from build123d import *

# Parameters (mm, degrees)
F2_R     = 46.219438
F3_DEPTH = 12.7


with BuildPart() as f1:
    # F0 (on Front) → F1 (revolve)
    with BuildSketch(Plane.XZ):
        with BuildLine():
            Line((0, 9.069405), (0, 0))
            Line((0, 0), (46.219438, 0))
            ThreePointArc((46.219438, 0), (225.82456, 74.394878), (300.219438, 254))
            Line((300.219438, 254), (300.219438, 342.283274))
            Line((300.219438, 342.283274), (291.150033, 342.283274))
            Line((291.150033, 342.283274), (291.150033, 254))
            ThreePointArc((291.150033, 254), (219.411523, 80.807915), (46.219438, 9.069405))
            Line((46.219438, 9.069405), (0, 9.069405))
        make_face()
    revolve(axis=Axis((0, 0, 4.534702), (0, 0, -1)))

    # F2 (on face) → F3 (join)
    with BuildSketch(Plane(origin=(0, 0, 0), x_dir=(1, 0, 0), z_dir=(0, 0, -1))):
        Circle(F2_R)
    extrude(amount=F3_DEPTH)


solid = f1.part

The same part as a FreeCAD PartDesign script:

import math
import FreeCAD as App
import Part
import Sketcher
from FreeCAD import Vector
Q = App.Units.Quantity

doc = App.newDocument("Part")
params = doc.addObject("Spreadsheet::Sheet", "Params")
for row, (alias, value) in enumerate([
    ("sketch1_radius", "10.0000001 in"),
    ("revolution_angle", "360 deg"),
    ("pad1_length", "0.5 in"),
], start=1):
    params.set(f"A{row}", alias)
    params.set(f"B{row}", "=" + value)
    params.setAlias(f"B{row}", alias)

body = doc.addObject("PartDesign::Body", "Body")

# Sketch on XZ plane
sketch1 = body.newObject("Sketcher::SketchObject", "Sketch")
sketch1.AttachmentSupport = (doc.getObject("XZ_Plane"), [""])
sketch1.MapMode = "FlatFace"
sketch1.addGeometry([
    Part.LineSegment(Vector(0, 9.069405, 0), Vector(0, 0, 0)),  # 0
    Part.LineSegment(Vector(0, 0, 0), Vector(46.219438, 0, 0)),  # 1
    Part.ArcOfCircle(Part.Circle(Vector(46.219437, 254.000001, 0), Vector(0, 0, 1), 254.000001), math.radians(-90), math.radians(0)),  # 2
    Part.LineSegment(Vector(300.219438, 254, 0), Vector(300.219438, 342.283274, 0)),  # 3
    Part.LineSegment(Vector(300.219438, 342.283274, 0), Vector(291.150033, 342.283274, 0)),  # 4
    Part.LineSegment(Vector(291.150033, 342.283274, 0), Vector(291.150033, 254, 0)),  # 5
    Part.ArcOfCircle(Part.Circle(Vector(46.219439, 253.999999, 0), Vector(0, 0, 1), 244.930594), math.radians(-90), math.radians(0)),  # 6
    Part.LineSegment(Vector(46.219438, 9.069405, 0), Vector(0, 9.069405, 0)),  # 7
], False)
sketch1.addConstraint([
    Sketcher.Constraint("Coincident", 0, 2, 1, 1),
    Sketcher.Constraint("Tangent", 1, 2, 2, 1),
    Sketcher.Constraint("Tangent", 2, 2, 3, 1),
    Sketcher.Constraint("Coincident", 3, 2, 4, 1),
    Sketcher.Constraint("Coincident", 4, 2, 5, 1),
    Sketcher.Constraint("Tangent", 5, 2, 6, 2),
    Sketcher.Constraint("Tangent", 6, 1, 7, 1),
    Sketcher.Constraint("Coincident", 7, 2, 0, 1),
    Sketcher.Constraint("Vertical", 0),
    Sketcher.Constraint("Horizontal", 1),
    Sketcher.Constraint("Vertical", 3),
    Sketcher.Constraint("Horizontal", 4),
    Sketcher.Constraint("Vertical", 5),
    Sketcher.Constraint("Horizontal", 7),
    Sketcher.Constraint("Coincident", 0, 2, -1, 1),
    Sketcher.Constraint("Coincident", 6, 3, 2, 3),
    Sketcher.Constraint("Radius", 2, Q("10.0000001 in")),
    Sketcher.Constraint("Radius", 6, 244.930594),
    Sketcher.Constraint("DistanceX", 1, 1, 1, 2, 46.219438),
    Sketcher.Constraint("DistanceY", 3, 1, 3, 2, 88.283274),
])
sketch1.setExpression("Constraints[16]", "Params.sketch1_radius")
revolution = body.newObject("PartDesign::Revolution", "Revolution")
revolution.Profile = sketch1
revolution.ReferenceAxis = (sketch1, ["V_Axis"])
revolution.setExpression("Angle", "Params.revolution_angle")

# Sketch on XY plane
sketch2 = body.newObject("Sketcher::SketchObject", "Sketch001")
sketch2.AttachmentSupport = (doc.getObject("XY_Plane"), [""])
sketch2.MapMode = "FlatFace"
sketch2.addGeometry(Part.Circle(Vector(0, 0, 0), Vector(0, 0, 1), 46.219438), False)
sketch2.addConstraint([
    Sketcher.Constraint("Coincident", 0, 3, -1, 1),
    Sketcher.Constraint("Diameter", 0, 92.438876),
])
pad1 = body.newObject("PartDesign::Pad", "Pad")
pad1.Profile = sketch2
pad1.setExpression("Length", "Params.pad1_length")
pad1.Reversed = True

doc.recompute()
